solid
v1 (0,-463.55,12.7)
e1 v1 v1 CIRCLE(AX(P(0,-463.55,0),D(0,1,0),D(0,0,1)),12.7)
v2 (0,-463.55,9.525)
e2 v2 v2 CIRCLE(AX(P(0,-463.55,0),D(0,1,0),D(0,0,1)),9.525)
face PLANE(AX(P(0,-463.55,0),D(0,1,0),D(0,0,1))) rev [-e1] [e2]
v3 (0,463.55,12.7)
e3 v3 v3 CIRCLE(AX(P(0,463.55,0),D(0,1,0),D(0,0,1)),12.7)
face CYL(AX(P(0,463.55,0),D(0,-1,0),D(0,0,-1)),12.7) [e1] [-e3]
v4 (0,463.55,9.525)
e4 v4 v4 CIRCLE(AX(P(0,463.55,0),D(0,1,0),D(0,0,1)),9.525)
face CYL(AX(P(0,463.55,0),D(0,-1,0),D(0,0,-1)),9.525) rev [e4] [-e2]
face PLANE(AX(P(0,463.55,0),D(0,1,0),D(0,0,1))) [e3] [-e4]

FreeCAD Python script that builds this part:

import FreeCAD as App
import Part
import Sketcher
Q = App.Units.Quantity

doc = App.newDocument("Part")
params = doc.addObject("Spreadsheet::Sheet", "Params")
for row, (alias, value) in enumerate([
    ("sketch1_diameter", "1 in"),
    ("sketch1_diameter2", "0.75 in"),
    ("pad1_length", "36.5 in"),
], start=1):
    params.set(f"A{row}", alias)
    params.set(f"B{row}", "=" + value)
    params.setAlias(f"B{row}", alias)

body = doc.addObject("PartDesign::Body", "Body")

sketch1 = doc.addObject("Sketcher::SketchObject", "Sketch")
body.addObject(sketch1)
sketch1.AttachmentSupport = (doc.XZ_Plane, [""])
sketch1.MapMode = "FlatFace"
sketch1.addGeometry([
    Part.Circle(App.Vector(0, 0, 0), App.Vector(0, 0, 1), 12.7),
    Part.Circle(App.Vector(0, 0, 0), App.Vector(0, 0, 1), 9.525),
], False)
sketch1.addConstraint([
    Sketcher.Constraint("Coincident", 0, 3, -1, 1),
    Sketcher.Constraint("Coincident", 1, 3, -1, 1),
    Sketcher.Constraint("Diameter", 0, Q("1 in")),
    Sketcher.Constraint("Diameter", 1, Q("0.75 in")),
])
sketch1.setExpression("Constraints[2]", "Params.sketch1_diameter")
sketch1.setExpression("Constraints[3]", "Params.sketch1_diameter2")
pad1 = doc.addObject("PartDesign::Pad", "Pad")
body.addObject(pad1)
pad1.Profile = sketch1
pad1.setExpression("Length", "Params.pad1_length")
pad1.Midplane = True

doc.recompute()
